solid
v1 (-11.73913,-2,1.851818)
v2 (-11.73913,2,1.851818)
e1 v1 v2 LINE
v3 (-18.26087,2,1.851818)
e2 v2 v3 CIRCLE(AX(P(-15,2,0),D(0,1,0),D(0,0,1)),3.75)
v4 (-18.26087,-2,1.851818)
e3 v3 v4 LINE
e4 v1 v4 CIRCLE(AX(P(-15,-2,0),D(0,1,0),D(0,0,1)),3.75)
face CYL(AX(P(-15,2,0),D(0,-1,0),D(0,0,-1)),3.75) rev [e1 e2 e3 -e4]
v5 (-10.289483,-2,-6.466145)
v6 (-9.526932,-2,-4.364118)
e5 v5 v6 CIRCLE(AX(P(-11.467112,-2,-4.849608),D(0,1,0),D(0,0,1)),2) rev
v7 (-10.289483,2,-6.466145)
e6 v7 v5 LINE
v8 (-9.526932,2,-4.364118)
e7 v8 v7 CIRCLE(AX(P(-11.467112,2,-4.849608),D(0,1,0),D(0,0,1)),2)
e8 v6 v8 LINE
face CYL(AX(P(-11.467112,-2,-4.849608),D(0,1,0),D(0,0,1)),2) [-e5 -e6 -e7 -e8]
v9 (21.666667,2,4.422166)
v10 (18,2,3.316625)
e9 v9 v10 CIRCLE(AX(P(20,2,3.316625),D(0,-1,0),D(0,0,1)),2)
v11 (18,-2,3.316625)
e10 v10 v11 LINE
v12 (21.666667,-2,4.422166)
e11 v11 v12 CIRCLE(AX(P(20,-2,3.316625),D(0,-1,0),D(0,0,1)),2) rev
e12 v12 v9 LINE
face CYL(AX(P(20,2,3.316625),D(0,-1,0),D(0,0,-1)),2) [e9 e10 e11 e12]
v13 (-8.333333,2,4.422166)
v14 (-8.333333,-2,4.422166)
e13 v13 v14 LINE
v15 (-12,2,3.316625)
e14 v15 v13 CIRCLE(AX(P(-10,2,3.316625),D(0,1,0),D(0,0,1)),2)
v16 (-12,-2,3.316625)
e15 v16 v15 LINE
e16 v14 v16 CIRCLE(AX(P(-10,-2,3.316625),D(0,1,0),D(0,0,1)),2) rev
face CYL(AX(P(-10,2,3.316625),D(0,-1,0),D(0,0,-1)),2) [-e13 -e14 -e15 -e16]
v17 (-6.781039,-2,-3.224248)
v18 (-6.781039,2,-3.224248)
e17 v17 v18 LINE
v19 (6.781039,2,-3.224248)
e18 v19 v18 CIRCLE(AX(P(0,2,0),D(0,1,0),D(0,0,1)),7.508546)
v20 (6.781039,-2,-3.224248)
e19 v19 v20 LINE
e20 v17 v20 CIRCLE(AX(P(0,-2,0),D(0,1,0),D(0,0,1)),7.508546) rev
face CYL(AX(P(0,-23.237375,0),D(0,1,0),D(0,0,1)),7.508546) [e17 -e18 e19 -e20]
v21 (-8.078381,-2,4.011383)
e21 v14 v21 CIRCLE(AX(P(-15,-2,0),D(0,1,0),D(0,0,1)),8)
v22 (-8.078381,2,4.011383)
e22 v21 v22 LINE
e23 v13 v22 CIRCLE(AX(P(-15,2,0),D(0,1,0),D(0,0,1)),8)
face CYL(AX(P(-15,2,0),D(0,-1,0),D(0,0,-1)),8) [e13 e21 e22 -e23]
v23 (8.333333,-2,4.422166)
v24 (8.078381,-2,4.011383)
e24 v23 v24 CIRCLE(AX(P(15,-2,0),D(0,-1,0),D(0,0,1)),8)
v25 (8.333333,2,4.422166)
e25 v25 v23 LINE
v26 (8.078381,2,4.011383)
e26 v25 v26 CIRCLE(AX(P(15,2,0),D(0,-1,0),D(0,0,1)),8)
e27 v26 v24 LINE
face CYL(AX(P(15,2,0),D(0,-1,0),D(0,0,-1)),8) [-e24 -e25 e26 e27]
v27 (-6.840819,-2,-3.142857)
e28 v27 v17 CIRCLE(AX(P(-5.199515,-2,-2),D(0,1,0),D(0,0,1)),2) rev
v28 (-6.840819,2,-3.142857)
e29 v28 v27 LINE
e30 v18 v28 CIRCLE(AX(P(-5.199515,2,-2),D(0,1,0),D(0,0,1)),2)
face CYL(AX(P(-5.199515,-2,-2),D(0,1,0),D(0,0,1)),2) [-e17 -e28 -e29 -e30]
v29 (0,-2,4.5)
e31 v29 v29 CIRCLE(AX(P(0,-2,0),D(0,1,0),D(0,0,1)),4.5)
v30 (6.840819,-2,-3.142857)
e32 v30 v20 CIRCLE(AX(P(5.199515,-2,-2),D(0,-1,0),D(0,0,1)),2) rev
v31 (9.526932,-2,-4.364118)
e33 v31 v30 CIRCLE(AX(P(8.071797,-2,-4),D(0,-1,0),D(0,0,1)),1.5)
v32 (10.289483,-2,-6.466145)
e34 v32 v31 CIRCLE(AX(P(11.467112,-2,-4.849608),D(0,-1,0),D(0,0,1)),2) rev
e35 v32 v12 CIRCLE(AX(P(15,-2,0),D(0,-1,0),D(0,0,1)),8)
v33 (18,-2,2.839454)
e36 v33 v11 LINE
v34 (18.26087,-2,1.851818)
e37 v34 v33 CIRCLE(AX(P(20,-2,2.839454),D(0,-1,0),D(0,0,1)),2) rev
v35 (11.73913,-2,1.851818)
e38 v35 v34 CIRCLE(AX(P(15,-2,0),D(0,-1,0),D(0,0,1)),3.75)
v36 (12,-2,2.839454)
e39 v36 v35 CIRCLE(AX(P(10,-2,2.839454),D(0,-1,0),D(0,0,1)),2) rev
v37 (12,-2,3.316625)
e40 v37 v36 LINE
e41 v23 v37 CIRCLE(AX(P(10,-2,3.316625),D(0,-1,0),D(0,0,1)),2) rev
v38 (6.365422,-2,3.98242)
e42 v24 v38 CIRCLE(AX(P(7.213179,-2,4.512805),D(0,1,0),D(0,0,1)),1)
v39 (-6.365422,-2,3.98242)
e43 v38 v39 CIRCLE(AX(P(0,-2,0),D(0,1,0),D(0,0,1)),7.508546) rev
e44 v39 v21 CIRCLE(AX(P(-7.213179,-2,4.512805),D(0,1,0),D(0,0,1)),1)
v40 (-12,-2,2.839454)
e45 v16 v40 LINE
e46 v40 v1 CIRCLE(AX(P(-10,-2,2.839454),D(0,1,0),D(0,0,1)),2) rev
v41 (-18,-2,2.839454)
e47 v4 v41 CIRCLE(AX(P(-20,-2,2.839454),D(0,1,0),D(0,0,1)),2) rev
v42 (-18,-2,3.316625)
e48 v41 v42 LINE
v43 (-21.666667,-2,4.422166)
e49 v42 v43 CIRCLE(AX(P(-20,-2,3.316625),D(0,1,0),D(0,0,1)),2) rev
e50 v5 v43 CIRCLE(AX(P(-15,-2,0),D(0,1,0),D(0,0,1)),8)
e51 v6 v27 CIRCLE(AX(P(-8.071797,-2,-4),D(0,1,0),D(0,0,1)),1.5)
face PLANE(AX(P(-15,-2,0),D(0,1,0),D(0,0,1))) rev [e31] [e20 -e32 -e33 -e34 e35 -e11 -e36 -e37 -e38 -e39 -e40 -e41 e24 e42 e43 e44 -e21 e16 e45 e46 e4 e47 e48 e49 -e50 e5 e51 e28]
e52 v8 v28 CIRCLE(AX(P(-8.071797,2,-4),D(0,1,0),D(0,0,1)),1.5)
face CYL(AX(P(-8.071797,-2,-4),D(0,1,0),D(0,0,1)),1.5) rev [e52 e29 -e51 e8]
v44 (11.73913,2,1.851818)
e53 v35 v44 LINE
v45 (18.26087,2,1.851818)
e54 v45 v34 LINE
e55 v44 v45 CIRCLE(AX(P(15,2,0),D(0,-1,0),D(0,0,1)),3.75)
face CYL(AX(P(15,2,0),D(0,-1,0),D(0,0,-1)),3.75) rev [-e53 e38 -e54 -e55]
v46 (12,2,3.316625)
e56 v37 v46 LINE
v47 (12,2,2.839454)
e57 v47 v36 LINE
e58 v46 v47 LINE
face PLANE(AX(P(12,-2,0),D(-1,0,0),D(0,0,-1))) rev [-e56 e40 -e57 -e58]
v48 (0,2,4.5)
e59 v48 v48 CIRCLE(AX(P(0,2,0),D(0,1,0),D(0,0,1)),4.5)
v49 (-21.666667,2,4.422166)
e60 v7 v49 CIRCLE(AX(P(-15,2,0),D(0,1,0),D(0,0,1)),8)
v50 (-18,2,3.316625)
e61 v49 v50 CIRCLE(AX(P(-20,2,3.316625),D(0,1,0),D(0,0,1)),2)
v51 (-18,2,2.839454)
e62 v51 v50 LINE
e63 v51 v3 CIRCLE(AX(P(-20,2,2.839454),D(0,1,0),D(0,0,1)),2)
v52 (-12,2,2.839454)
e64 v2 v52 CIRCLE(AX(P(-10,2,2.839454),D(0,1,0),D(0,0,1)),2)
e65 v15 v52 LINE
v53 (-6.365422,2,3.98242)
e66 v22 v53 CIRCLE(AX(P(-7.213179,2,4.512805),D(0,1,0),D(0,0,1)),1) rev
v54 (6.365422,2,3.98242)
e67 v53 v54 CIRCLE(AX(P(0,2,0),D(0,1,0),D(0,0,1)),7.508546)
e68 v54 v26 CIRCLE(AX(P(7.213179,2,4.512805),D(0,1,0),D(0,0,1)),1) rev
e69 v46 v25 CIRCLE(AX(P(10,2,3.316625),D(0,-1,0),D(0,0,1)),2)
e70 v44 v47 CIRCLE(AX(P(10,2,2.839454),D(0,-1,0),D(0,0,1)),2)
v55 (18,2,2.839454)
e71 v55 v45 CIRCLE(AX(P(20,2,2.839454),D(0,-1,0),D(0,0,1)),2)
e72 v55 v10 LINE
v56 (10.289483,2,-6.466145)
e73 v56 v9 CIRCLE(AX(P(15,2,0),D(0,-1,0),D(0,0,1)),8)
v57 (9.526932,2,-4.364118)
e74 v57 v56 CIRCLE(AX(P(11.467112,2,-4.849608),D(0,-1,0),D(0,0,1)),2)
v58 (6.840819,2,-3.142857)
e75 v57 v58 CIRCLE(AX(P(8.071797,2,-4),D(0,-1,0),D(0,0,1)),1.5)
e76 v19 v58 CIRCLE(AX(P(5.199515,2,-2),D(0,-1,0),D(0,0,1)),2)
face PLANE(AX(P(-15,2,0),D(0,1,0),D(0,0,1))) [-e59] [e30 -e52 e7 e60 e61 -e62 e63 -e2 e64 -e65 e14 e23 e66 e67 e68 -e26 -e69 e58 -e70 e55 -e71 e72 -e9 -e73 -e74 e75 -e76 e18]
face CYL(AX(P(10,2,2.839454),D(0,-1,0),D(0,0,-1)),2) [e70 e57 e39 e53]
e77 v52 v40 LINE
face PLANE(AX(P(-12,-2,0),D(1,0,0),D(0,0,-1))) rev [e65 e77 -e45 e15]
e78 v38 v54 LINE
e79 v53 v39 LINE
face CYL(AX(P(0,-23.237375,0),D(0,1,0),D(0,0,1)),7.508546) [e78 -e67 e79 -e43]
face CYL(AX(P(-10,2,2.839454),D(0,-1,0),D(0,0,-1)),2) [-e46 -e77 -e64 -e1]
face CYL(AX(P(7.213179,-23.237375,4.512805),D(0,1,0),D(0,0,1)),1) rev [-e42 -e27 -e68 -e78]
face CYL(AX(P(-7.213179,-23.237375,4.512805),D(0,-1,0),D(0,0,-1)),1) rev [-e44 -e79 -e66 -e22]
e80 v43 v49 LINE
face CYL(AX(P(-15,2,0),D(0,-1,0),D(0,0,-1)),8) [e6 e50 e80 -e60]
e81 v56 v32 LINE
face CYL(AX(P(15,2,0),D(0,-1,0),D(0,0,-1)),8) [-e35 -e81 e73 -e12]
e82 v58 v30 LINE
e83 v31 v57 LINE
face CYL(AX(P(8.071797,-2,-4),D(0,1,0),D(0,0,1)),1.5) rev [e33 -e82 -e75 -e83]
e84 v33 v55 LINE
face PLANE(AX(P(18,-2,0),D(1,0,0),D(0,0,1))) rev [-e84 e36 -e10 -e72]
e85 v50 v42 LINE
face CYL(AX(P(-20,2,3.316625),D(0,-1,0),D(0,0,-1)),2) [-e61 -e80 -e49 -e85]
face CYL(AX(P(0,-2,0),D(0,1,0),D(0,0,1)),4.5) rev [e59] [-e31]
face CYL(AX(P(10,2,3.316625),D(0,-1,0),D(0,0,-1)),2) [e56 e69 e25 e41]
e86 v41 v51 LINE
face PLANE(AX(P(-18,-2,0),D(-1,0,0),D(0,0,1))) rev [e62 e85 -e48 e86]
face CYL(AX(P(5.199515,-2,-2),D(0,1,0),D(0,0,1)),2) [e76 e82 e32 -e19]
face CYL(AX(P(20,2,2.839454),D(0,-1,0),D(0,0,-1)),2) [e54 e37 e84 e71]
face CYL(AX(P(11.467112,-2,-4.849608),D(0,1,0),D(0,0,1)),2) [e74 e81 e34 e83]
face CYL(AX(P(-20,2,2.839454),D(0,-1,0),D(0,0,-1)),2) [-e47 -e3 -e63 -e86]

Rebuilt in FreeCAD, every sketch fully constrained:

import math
import FreeCAD as App
import Part
import Sketcher
from FreeCAD import Vector
Q = App.Units.Quantity


def edges_at(feature, points):
    """Names of the edges that pass closest to the given points."""
    edges = feature.Shape.Edges
    near = lambda p: min(range(len(edges)), key=lambda i: edges[i].distToShape(Part.Vertex(*p))[0])
    return sorted({f"Edge{near(p) + 1}" for p in points})

doc = App.newDocument("Part")
body = doc.addObject("PartDesign::Body", "Body")

sketch1 = body.newObject("Sketcher::SketchObject", "Sketch")
sketch1.AttachmentSupport = (doc.getObject("XZ_Plane"), [""])
sketch1.MapMode = "FlatFace"
sketch1.addGeometry([
    Part.LineSegment(Vector(-7.6, 3, 0), Vector(0, 3, 0)),
    Part.LineSegment(Vector(0, 3, 0), Vector(0, -4, 0)),
    Part.LineSegment(Vector(0, -4, 0), Vector(-8.1, -4, 0)),
    Part.ArcOfCircle(Part.Circle(Vector(-15, 0, 0), Vector(0, 0, 1), 8), math.radians(22), math.radians(330)),
    Part.Circle(Vector(-15, 0, 0), Vector(0, 0, 1), 3.8),
], False)
sketch1.addConstraint([
    Sketcher.Constraint("Coincident", 0, 2, 1, 1),
    Sketcher.Constraint("Coincident", 1, 2, 2, 1),
    Sketcher.Constraint("Coincident", 2, 2, 3, 2),
    Sketcher.Constraint("Coincident", 3, 1, 0, 1),
    Sketcher.Constraint("Horizontal", 0),
    Sketcher.Constraint("Vertical", 1),
    Sketcher.Constraint("Horizontal", 2),
    Sketcher.Constraint("Coincident", 4, 3, 3, 3),
    Sketcher.Constraint("PointOnObject", 3, 3, -1),
    Sketcher.Constraint("PointOnObject", 0, 2, -2),
    Sketcher.Constraint("Radius", 3, Q("8 mm")),
    Sketcher.Constraint("Diameter", 4, Q("7.5 mm")),
    Sketcher.Constraint("DistanceY", 1, 2, 1, 1, Q("7 mm")),
    Sketcher.Constraint("DistanceX", 3, 3, -1, 1, Q("15 mm")),
    Sketcher.Constraint("DistanceY", -1, 1, 0, 2, Q("3 mm")),
])
pad1 = body.newObject("PartDesign::Pad", "Pad")
pad1.Profile = sketch1
pad1.Length = 4
pad1.Midplane = True

sketch2 = body.newObject("Sketcher::SketchObject", "Sketch001")
sketch2.AttachmentSupport = (doc.getObject("XZ_Plane"), [""])
sketch2.MapMode = "FlatFace"
sketch2.AttachmentOffset = App.Placement(Vector(0, 0, -2), App.Rotation())
sketch2.addGeometry([
    Part.Circle(Vector(-8.1, -4, 0), Vector(0, 0, 1), 1.5),
    Part.LineSegment(Vector(-12, 8, 0), Vector(-12, 0, 0)),
    Part.ArcOfCircle(Part.Circle(Vector(-15, 0, 0), Vector(0, 0, 1), 3), math.radians(180), math.radians(360)),
    Part.LineSegment(Vector(-18, 0, 0), Vector(-18, 8, 0)),
    Part.ArcOfCircle(Part.Circle(Vector(-15, 8, 0), Vector(0, 0, 1), 3), math.radians(0), math.radians(180)),
], False)
sketch2.addConstraint([
    Sketcher.Constraint("Tangent", 1, 2, 2, 2),
    Sketcher.Constraint("Tangent", 2, 1, 3, 1),
    Sketcher.Constraint("Tangent", 3, 2, 4, 2),
    Sketcher.Constraint("Tangent", 4, 1, 1, 1),
    Sketcher.Constraint("Vertical", 1),
    Sketcher.Constraint("Vertical", 3),
    Sketcher.Constraint("PointOnObject", 2, 3, -1),
    Sketcher.Constraint("Diameter", 0, Q("3 mm")),
    Sketcher.Constraint("Radius", 2, Q("3 mm")),
    Sketcher.Constraint("DistanceY", 1, 2, 1, 1, Q("8 mm")),
    Sketcher.Constraint("DistanceY", 0, 3, -1, 1, Q("4 mm")),
    Sketcher.Constraint("DistanceX", 2, 3, -1, 1, Q("15 mm")),
    Sketcher.Constraint("DistanceX", 0, 3, -1, 1, Q("8.071797 mm")),
])
pocket1 = body.newObject("PartDesign::Pocket", "Pocket")
pocket1.Profile = sketch2
pocket1.Type = "ThroughAll"
pocket1.Reversed = True
doc.recompute()

fillet = body.newObject("PartDesign::Fillet", "Fillet")
fillet.Base = (pocket1, edges_at(pocket1, [
    (-8.94, 0, -5.223),
    (-6.572, 0, -4),
    (-18, 0, 2.25),
    (-12, 0, 2.25),
    (-7.584, 0, 3),
]))
fillet.Radius = 2
doc.recompute()

fillet2 = body.newObject("PartDesign::Fillet", "Fillet001")
fillet2.Base = (fillet, edges_at(fillet, [(-12, 0, 7.416), (-18, 0, 7.416)]))
fillet2.Radius = 2
body2 = doc.addObject("PartDesign::Body", "Body001")
doc.recompute()

body2.BaseFeature = body
doc.recompute()

mirroring = doc.addObject("Part::Mirroring", "Mirroring")
mirroring.Source = body
mirroring.Base = Vector(0, 2, -4)
mirroring.Normal = Vector(-1, 0, 0)
body3 = doc.addObject("PartDesign::Body", "Body002")
body3.BaseFeature = mirroring
boolean = body2.newObject("PartDesign::Boolean", "Boolean")
boolean.Type = "Fuse"
boolean.addObjects([body3])
doc.recompute()

sketch3 = body2.newObject("Sketcher::SketchObject", "Sketch002")
sketch3.AttachmentSupport = (doc.getObject("XZ_Plane001"), [""])
sketch3.MapMode = "FlatFace"
sketch3.AttachmentOffset = App.Placement(Vector(0, 0, -2), App.Rotation())
sketch3.addGeometry(Part.Circle(Vector(0, 0, 0), Vector(0, 0, 1), 8), False)
sketch3.addConstraint([
    Sketcher.Constraint("Coincident", 0, 3, -1, 1),
    Sketcher.Constraint("Diameter", 0, Q("15.017092 mm")),
])
pad2 = body2.newObject("PartDesign::Pad", "Pad001")
pad2.Profile = sketch3
pad2.Length = 4

sketch4 = body2.newObject("Sketcher::SketchObject", "Sketch003")
sketch4.AttachmentSupport = (doc.getObject("XZ_Plane001"), [""])
sketch4.MapMode = "FlatFace"
sketch4.AttachmentOffset = App.Placement(Vector(0, 0, -2), App.Rotation())
sketch4.addGeometry(Part.Circle(Vector(0, 0, 0), Vector(0, 0, 1), 4.5), False)
sketch4.addConstraint([
    Sketcher.Constraint("Coincident", 0, 3, -1, 1),
    Sketcher.Constraint("Diameter", 0, Q("9 mm")),
])
pocket2 = body2.newObject("PartDesign::Pocket", "Pocket001")
pocket2.Profile = sketch4
pocket2.Type = "ThroughAll"
pocket2.Reversed = True
doc.recompute()

fillet3 = body2.newObject("PartDesign::Fillet", "Fillet002")
fillet3.Base = (pocket2, edges_at(pocket2, [(6.854, 0, 3.067), (-6.854, 0, 3.067)]))
fillet3.Radius = 1
mirroring.Visibility = False

doc.recompute()
